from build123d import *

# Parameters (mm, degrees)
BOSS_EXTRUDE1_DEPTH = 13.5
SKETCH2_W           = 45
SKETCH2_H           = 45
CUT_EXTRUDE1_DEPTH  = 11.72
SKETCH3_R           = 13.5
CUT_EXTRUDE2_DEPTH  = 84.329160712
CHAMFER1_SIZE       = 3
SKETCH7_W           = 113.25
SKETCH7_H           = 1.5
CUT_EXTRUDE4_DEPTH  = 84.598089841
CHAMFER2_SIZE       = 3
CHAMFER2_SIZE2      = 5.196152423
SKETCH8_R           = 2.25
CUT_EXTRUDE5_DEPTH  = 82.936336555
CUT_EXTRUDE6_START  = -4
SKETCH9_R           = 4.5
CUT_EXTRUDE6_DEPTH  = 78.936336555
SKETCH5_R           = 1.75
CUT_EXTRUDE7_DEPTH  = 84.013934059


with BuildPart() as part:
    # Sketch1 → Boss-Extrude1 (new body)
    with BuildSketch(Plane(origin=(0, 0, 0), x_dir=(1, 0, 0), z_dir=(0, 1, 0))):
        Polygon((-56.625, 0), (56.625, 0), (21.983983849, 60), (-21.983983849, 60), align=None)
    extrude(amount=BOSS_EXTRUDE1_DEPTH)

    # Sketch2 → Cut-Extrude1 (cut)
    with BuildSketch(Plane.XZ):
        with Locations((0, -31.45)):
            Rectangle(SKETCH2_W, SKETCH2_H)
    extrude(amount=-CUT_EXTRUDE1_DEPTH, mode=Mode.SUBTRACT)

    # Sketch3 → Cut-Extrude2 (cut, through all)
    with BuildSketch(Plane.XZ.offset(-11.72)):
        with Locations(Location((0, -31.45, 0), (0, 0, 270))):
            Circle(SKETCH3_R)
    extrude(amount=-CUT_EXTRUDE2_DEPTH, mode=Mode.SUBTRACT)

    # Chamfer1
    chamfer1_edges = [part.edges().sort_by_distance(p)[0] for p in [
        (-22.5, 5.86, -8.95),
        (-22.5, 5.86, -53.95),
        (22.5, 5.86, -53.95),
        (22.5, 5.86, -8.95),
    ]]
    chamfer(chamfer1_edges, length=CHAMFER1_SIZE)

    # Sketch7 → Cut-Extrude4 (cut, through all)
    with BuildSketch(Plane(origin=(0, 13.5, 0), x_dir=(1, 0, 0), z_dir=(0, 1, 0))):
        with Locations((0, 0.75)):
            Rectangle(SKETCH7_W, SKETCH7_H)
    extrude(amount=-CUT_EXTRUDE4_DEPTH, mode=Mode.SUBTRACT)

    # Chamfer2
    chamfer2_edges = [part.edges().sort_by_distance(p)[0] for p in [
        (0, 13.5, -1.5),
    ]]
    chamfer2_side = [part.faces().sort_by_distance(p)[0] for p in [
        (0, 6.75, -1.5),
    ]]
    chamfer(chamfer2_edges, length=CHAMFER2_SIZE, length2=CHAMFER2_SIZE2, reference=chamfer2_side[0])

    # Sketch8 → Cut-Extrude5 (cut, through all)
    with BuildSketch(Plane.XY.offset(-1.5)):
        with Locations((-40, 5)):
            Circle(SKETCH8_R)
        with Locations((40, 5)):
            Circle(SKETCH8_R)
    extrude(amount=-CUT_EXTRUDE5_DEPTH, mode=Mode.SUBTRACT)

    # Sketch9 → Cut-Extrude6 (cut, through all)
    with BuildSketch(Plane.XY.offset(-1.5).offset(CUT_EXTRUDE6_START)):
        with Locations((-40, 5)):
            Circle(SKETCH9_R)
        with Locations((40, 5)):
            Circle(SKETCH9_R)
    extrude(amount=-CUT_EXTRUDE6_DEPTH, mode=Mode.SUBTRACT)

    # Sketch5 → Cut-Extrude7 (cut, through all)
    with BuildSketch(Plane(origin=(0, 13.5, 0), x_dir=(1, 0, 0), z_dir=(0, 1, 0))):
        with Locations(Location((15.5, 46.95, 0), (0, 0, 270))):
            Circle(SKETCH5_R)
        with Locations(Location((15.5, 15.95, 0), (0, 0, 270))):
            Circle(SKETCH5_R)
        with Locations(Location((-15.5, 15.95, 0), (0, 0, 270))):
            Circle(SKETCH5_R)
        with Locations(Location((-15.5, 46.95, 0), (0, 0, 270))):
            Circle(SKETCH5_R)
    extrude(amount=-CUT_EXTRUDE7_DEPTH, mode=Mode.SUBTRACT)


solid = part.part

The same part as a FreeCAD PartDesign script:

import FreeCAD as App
import Part
import Sketcher
Q = App.Units.Quantity


def edges_at(feature, points):
    """Names of the edges that pass closest to the given points."""
    edges = feature.Shape.Edges
    near = lambda p: min(range(len(edges)), key=lambda i: edges[i].distToShape(Part.Vertex(*p))[0])
    return sorted({f"Edge{near(p) + 1}" for p in points})

doc = App.newDocument("Part")
params = doc.addObject("Spreadsheet::Sheet", "Params")
for row, (alias, value) in enumerate([
    ("sketch1_width", "113.25 mm"),
    ("pad1_length", "13.5 mm"),
    ("sketch2_width", "45 mm"),
    ("pocket1_length", "11.72 mm"),
    ("sketch3_diameter", "27 mm"),
    ("chamfer_size", "3 mm"),
    ("sketch4_height", "1.5 mm"),
    ("sketch4_width", "113.25 mm"),
    ("chamfer2_size", "3 mm"),
    ("chamfer2_size2", "5.196152 mm"),
    ("sketch5_diameter", "4.5 mm"),
    ("sketch6_diameter", "9 mm"),
    ("sketch7_diameter", "3.5 mm"),
], start=1):
    params.set(f"A{row}", alias)
    params.set(f"B{row}", "=" + value)
    params.setAlias(f"B{row}", alias)

body = doc.addObject("PartDesign::Body", "Body")

# Sketch on XZ plane
sketch1 = doc.addObject("Sketcher::SketchObject", "Sketch")
body.addObject(sketch1)
sketch1.AttachmentSupport = (doc.XZ_Plane, [""])
sketch1.MapMode = "FlatFace"
sketch1.addGeometry([
    Part.LineSegment(App.Vector(-57, 0, 0), App.Vector(57, 0, 0)),
    Part.LineSegment(App.Vector(57, 0, 0), App.Vector(22, -60, 0)),
    Part.LineSegment(App.Vector(22, -60, 0), App.Vector(-22, -60, 0)),
    Part.LineSegment(App.Vector(-22, -60, 0), App.Vector(-57, 0, 0)),
], False)
sketch1.addConstraint([
    Sketcher.Constraint("Coincident", 0, 2, 1, 1),
    Sketcher.Constraint("Coincident", 1, 2, 2, 1),
    Sketcher.Constraint("Coincident", 2, 2, 3, 1),
    Sketcher.Constraint("Coincident", 3, 2, 0, 1),
    Sketcher.Constraint("Horizontal", 0),
    Sketcher.Constraint("Horizontal", 2),
    Sketcher.Constraint("Symmetric", 0, 2, 3, 2, -1, 1),
    Sketcher.Constraint("Equal", 1, 3),
    Sketcher.Constraint("Angle", 1, Q("-120 deg")),
    Sketcher.Constraint("DistanceY", 1, 2, -1, 1, 60.0),
    Sketcher.Constraint("DistanceX", 0, 1, 0, 2, 113.25),
])
sketch1.setExpression("Constraints[10]", "Params.sketch1_width")
pad1 = doc.addObject("PartDesign::Pad", "Pad")
body.addObject(pad1)
pad1.Profile = sketch1
pad1.setExpression("Length", "Params.pad1_length")
pad1.Reversed = True

# Sketch on XZ plane
sketch2 = doc.addObject("Sketcher::SketchObject", "Sketch001")
body.addObject(sketch2)
sketch2.AttachmentSupport = (doc.XZ_Plane, [""])
sketch2.MapMode = "FlatFace"
sketch2.addGeometry([
    Part.LineSegment(App.Vector(-22, -9, 0), App.Vector(-22, -54, 0)),
    Part.LineSegment(App.Vector(-22, -54, 0), App.Vector(22, -54, 0)),
    Part.LineSegment(App.Vector(22, -54, 0), App.Vector(22, -9, 0)),
    Part.LineSegment(App.Vector(22, -9, 0), App.Vector(-22, -9, 0)),
], False)
sketch2.addConstraint([
    Sketcher.Constraint("Coincident", 0, 2, 1, 1),
    Sketcher.Constraint("Coincident", 1, 2, 2, 1),
    Sketcher.Constraint("Coincident", 2, 2, 3, 1),
    Sketcher.Constraint("Coincident", 3, 2, 0, 1),
    Sketcher.Constraint("Vertical", 0),
    Sketcher.Constraint("Horizontal", 1),
    Sketcher.Constraint("Vertical", 2),
    Sketcher.Constraint("Horizontal", 3),
    Sketcher.Constraint("Equal", 3, 0),
    Sketcher.Constraint("DistanceX", 1, 1, 1, 2, 45.0),
    Sketcher.Constraint("DistanceX", 0, 2, -1, 1, 22.5),
    Sketcher.Constraint("DistanceY", 0, 2, -1, 1, 53.95),
])
sketch2.setExpression("Constraints[9]", "Params.sketch2_width")
pocket1 = doc.addObject("PartDesign::Pocket", "Pocket")
body.addObject(pocket1)
pocket1.Profile = sketch2
pocket1.setExpression("Length", "Params.pocket1_length")

# Sketch on XZ plane
sketch3 = doc.addObject("Sketcher::SketchObject", "Sketch002")
body.addObject(sketch3)
sketch3.AttachmentSupport = (doc.XZ_Plane, [""])
sketch3.MapMode = "FlatFace"
sketch3.AttachmentOffset = App.Placement(App.Vector(0, 0, -11.72), App.Rotation())
sketch3.addGeometry(Part.Circle(App.Vector(0, -31, 0), App.Vector(0, 0, 1), 14), False)
sketch3.addConstraint([
    Sketcher.Constraint("PointOnObject", 0, 3, -2),
    Sketcher.Constraint("Diameter", 0, 27.0),
    Sketcher.Constraint("DistanceY", 0, 3, -1, 1, 31.45),
])
sketch3.setExpression("Constraints[1]", "Params.sketch3_diameter")
pocket2 = doc.addObject("PartDesign::Pocket", "Pocket001")
body.addObject(pocket2)
pocket2.Profile = sketch3
pocket2.Type = "ThroughAll"
doc.recompute()

chamfer = doc.addObject("PartDesign::Chamfer", "Chamfer")
body.addObject(chamfer)
chamfer.Base = (pocket2, edges_at(pocket2, [
    (-22.5, 5.86, -8.95),
    (-22.5, 5.86, -53.95),
    (22.5, 5.86, -53.95),
    (22.5, 5.86, -8.95),
]))
chamfer.setExpression("Size", "Params.chamfer_size")

# Sketch on XZ plane
sketch4 = doc.addObject("Sketcher::SketchObject", "Sketch003")
body.addObject(sketch4)
sketch4.AttachmentSupport = (doc.XZ_Plane, [""])
sketch4.MapMode = "FlatFace"
sketch4.AttachmentOffset = App.Placement(App.Vector(0, 0, -13.5), App.Rotation())
sketch4.addGeometry([
    Part.LineSegment(App.Vector(-56.6, -1.5, 0), App.Vector(-56.6, 0, 0)),
    Part.LineSegment(App.Vector(-56.6, 0, 0), App.Vector(56.6, 0, 0)),
    Part.LineSegment(App.Vector(56.6, 0, 0), App.Vector(56.6, -1.5, 0)),
    Part.LineSegment(App.Vector(56.6, -1.5, 0), App.Vector(-56.6, -1.5, 0)),
], False)
sketch4.addConstraint([
    Sketcher.Constraint("Coincident", 0, 2, 1, 1),
    Sketcher.Constraint("Coincident", 1, 2, 2, 1),
    Sketcher.Constraint("Coincident", 2, 2, 3, 1),
    Sketcher.Constraint("Coincident", 3, 2, 0, 1),
    Sketcher.Constraint("Vertical", 0),
    Sketcher.Constraint("Horizontal", 1),
    Sketcher.Constraint("Vertical", 2),
    Sketcher.Constraint("Horizontal", 3),
    Sketcher.Constraint("Symmetric", 0, 2, 1, 2, -1, 1),
    Sketcher.Constraint("DistanceY", 0, 1, 0, 2, 1.5),
    Sketcher.Constraint("DistanceX", 1, 1, 1, 2, 113.25),
])
sketch4.setExpression("Constraints[9]", "Params.sketch4_height")
sketch4.setExpression("Constraints[10]", "Params.sketch4_width")
pocket3 = doc.addObject("PartDesign::Pocket", "Pocket002")
body.addObject(pocket3)
pocket3.Profile = sketch4
pocket3.Type = "ThroughAll"
pocket3.Reversed = True
doc.recompute()

chamfer2 = doc.addObject("PartDesign::Chamfer", "Chamfer001")
body.addObject(chamfer2)
chamfer2.Base = (pocket3, edges_at(pocket3, [(0, 13.5, -1.5)]))
chamfer2.ChamferType = "Two distances"
chamfer2.setExpression("Size", "Params.chamfer2_size")
chamfer2.setExpression("Size2", "Params.chamfer2_size2")

# Sketch on XY plane
sketch5 = doc.addObject("Sketcher::SketchObject", "Sketch004")
body.addObject(sketch5)
sketch5.AttachmentSupport = (doc.XY_Plane, [""])
sketch5.MapMode = "FlatFace"
sketch5.AttachmentOffset = App.Placement(App.Vector(0, 0, -1.5), App.Rotation())
sketch5.addGeometry([
    Part.Circle(App.Vector(-40, 5, 0), App.Vector(0, 0, 1), 2.2),
    Part.Circle(App.Vector(40, 5, 0), App.Vector(0, 0, 1), 2.2),
], False)
sketch5.addConstraint([
    Sketcher.Constraint("Equal", 0, 1),
    Sketcher.Constraint("Symmetric", 0, 3, 1, 3, -2),
    Sketcher.Constraint("Diameter", 0, 4.5),
    Sketcher.Constraint("DistanceX", 0, 3, -1, 1, 40.0),
    Sketcher.Constraint("DistanceY", -1, 1, 0, 3, 5.0),
])
sketch5.setExpression("Constraints[2]", "Params.sketch5_diameter")
pocket4 = doc.addObject("PartDesign::Pocket", "Pocket003")
body.addObject(pocket4)
pocket4.Profile = sketch5
pocket4.Type = "ThroughAll"

# Sketch on XY plane
sketch6 = doc.addObject("Sketcher::SketchObject", "Sketch005")
body.addObject(sketch6)
sketch6.AttachmentSupport = (doc.XY_Plane, [""])
sketch6.MapMode = "FlatFace"
sketch6.AttachmentOffset = App.Placement(App.Vector(0, 0, -5.5), App.Rotation())
sketch6.addGeometry([
    Part.Circle(App.Vector(-40, 5, 0), App.Vector(0, 0, 1), 4.5),
    Part.Circle(App.Vector(40, 5, 0), App.Vector(0, 0, 1), 4.5),
], False)
sketch6.addConstraint([
    Sketcher.Constraint("Equal", 0, 1),
    Sketcher.Constraint("Symmetric", 0, 3, 1, 3, -2),
    Sketcher.Constraint("Diameter", 0, 9.0),
    Sketcher.Constraint("DistanceX", 0, 3, -1, 1, 40.0),
    Sketcher.Constraint("DistanceY", -1, 1, 0, 3, 5.0),
])
sketch6.setExpression("Constraints[2]", "Params.sketch6_diameter")
pocket5 = doc.addObject("PartDesign::Pocket", "Pocket004")
body.addObject(pocket5)
pocket5.Profile = sketch6
pocket5.Type = "ThroughAll"

# Sketch on XZ plane
sketch7 = doc.addObject("Sketcher::SketchObject", "Sketch006")
body.addObject(sketch7)
sketch7.AttachmentSupport = (doc.XZ_Plane, [""])
sketch7.MapMode = "FlatFace"
sketch7.AttachmentOffset = App.Placement(App.Vector(0, 0, -13.5), App.Rotation())
sketch7.addGeometry([
    Part.Circle(App.Vector(15.5, -47, 0), App.Vector(0, 0, 1), 1.8),
    Part.Circle(App.Vector(15.5, -15.9, 0), App.Vector(0, 0, 1), 1.8),
    Part.Circle(App.Vector(-15.5, -15.9, 0), App.Vector(0, 0, 1), 1.8),
    Part.Circle(App.Vector(-15.5, -47, 0), App.Vector(0, 0, 1), 1.8),
], False)
sketch7.addConstraint([
    Sketcher.Constraint("Equal", 0, 1),
    Sketcher.Constraint("Equal", 1, 2),
    Sketcher.Constraint("Equal", 2, 3),
    Sketcher.Constraint("Symmetric", 1, 3, 2, 3, -2),
    Sketcher.Constraint("Symmetric", 0, 3, 3, 3, -2),
    Sketcher.Constraint("Vertical", 0, 3, 1, 3),
    Sketcher.Constraint("Diameter", 0, 3.5),
    Sketcher.Constraint("DistanceY", 0, 3, 1, 3, 31.0),
    Sketcher.Constraint("DistanceX", 2, 3, 1, 3, 31.0),
    Sketcher.Constraint("DistanceY", 0, 3, -1, 1, 46.95),
])
sketch7.setExpression("Constraints[6]", "Params.sketch7_diameter")
pocket6 = doc.addObject("PartDesign::Pocket", "Pocket005")
body.addObject(pocket6)
pocket6.Profile = sketch7
pocket6.Type = "ThroughAll"
pocket6.Reversed = True

doc.recompute()
